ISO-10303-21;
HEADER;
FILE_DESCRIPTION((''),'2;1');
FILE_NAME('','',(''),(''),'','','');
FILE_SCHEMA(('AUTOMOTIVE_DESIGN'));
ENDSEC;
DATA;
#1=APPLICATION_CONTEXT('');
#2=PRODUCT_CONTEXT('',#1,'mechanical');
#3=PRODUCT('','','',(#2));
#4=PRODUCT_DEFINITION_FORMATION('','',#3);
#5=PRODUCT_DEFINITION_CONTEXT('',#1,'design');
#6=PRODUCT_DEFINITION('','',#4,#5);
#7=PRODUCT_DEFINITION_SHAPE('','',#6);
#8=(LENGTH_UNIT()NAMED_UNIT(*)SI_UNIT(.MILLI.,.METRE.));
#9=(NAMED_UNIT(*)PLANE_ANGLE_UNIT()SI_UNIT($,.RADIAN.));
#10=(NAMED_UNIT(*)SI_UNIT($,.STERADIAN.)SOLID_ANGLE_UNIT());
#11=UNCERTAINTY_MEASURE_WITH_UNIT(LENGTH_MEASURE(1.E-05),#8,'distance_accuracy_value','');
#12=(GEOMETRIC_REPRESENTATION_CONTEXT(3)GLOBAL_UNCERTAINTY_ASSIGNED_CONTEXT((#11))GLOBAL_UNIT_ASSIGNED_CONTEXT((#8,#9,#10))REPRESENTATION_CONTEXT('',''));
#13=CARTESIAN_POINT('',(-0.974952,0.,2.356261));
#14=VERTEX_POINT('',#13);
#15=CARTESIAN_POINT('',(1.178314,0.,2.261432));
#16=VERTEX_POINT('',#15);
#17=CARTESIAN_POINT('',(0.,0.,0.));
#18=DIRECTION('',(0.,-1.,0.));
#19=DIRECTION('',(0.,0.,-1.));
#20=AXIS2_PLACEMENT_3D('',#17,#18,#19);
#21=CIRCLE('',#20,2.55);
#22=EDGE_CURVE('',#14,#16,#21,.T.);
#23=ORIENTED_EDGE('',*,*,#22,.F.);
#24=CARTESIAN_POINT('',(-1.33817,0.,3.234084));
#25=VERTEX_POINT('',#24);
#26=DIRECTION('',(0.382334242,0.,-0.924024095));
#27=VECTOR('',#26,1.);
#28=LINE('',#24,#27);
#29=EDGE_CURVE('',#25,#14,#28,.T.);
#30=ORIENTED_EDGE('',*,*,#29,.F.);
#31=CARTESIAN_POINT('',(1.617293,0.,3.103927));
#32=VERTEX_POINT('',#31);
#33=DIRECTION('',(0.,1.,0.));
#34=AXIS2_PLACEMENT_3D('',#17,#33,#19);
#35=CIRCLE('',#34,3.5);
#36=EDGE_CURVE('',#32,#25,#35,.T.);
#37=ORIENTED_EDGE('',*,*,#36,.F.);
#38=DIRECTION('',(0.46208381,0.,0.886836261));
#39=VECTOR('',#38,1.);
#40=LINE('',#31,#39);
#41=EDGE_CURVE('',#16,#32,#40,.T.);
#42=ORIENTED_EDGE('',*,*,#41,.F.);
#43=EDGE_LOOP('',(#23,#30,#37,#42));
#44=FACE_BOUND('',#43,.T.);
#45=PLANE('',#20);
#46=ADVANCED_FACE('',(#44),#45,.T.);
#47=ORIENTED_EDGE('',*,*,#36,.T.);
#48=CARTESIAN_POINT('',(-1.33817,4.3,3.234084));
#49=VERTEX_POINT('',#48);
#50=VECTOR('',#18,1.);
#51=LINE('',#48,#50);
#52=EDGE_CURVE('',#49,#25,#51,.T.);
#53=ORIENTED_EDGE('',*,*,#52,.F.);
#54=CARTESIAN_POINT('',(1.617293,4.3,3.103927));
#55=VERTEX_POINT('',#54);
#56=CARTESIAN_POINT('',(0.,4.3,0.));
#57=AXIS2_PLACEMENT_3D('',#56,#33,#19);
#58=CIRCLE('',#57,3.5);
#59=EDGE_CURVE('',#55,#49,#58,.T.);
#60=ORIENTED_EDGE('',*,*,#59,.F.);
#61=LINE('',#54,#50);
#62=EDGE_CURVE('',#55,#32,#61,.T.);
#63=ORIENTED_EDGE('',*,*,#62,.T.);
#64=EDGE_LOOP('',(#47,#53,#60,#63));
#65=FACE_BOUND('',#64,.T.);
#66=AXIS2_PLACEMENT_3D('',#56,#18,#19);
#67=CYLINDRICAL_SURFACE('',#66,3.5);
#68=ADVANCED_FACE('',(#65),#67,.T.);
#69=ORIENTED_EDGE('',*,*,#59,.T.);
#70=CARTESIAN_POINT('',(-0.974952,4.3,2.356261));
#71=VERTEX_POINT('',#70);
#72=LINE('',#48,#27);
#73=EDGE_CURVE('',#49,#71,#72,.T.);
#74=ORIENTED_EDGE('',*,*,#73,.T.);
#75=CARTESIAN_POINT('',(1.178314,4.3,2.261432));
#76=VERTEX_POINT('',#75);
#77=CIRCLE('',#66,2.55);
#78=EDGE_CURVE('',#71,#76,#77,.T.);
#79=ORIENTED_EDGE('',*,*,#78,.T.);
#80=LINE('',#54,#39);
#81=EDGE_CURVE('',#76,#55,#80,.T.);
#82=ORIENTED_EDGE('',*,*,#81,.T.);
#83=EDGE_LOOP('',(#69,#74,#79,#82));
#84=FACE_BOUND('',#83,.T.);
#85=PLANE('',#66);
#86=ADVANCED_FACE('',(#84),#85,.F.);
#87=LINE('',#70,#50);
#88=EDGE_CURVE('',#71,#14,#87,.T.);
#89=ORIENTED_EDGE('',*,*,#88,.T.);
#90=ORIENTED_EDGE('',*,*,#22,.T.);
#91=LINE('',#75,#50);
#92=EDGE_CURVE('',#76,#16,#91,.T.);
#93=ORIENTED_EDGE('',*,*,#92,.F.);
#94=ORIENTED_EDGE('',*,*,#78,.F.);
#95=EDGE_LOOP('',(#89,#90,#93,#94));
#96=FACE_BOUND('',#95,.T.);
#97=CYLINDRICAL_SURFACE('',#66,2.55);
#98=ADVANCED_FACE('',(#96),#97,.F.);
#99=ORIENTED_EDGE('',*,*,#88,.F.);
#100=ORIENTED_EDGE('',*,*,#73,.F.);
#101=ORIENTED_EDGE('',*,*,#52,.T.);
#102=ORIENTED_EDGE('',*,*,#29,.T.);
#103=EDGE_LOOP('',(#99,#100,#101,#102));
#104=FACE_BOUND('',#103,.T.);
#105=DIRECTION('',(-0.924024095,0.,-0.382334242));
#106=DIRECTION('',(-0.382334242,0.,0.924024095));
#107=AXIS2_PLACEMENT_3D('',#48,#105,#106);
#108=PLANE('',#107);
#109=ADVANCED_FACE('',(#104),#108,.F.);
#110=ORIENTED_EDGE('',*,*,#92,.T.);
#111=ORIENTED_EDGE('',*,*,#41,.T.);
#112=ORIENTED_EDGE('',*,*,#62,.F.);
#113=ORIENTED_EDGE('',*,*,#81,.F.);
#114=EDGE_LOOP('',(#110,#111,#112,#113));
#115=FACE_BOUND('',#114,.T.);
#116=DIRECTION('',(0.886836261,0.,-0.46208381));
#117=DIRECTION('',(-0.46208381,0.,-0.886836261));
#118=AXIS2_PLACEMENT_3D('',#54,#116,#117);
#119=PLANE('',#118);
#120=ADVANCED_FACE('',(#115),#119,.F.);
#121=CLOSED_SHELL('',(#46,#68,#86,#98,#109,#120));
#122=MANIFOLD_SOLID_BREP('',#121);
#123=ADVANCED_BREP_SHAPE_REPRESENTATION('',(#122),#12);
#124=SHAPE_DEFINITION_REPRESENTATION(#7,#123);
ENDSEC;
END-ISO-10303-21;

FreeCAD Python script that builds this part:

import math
import FreeCAD as App
import Part
import Sketcher

V = App.Vector
Q = App.Units.Quantity

doc = App.newDocument("Part")
body = doc.addObject("PartDesign::Body", "Body")

# Sketch on XZ plane
sketch1 = body.newObject("Sketcher::SketchObject", "Sketch")
sketch1.AttachmentSupport = (doc.getObject("XZ_Plane"), [""])
sketch1.MapMode = "FlatFace"
sketch1.addGeometry([
    Part.LineSegment(V(-1.33817, 3.234084, 0), V(-0.974952, 2.356261, 0)),
    Part.ArcOfCircle(Part.Circle(V(0, 0, 0), V(0, 0, 1), 2.55), math.radians(112.478346), math.radians(422.478346)),
    Part.LineSegment(V(1.178314, 2.261432, 0), V(1.617293, 3.103927, 0)),
    Part.ArcOfCircle(Part.Circle(V(0, 0, 0), V(0, 0, 1), 3.5), math.radians(112.478346), math.radians(422.478346)),
], False)
sketch1.addConstraint([
    Sketcher.Constraint("Coincident", 0, 2, 1, 1),
    Sketcher.Constraint("Coincident", 1, 2, 2, 1),
    Sketcher.Constraint("Coincident", 2, 2, 3, 2),
    Sketcher.Constraint("Coincident", 3, 1, 0, 1),
    Sketcher.Constraint("Coincident", 1, 3, -1, 1),
    Sketcher.Constraint("Coincident", 3, 3, -1, 1),
    Sketcher.Constraint("Radius", 3, Q("3.5 mm")),
    Sketcher.Constraint("Radius", 1, Q("2.55 mm")),
    Sketcher.Constraint("DistanceY", -1, 1, 0, 2, Q("2.356261 mm")),
    Sketcher.Constraint("DistanceX", 3, 1, -1, 1, Q("1.33817 mm")),
    Sketcher.Constraint("DistanceY", 1, 2, 0, 2, Q("0.094829 mm")),
    Sketcher.Constraint("DistanceX", 1, 2, 2, 2, Q("0.43898 mm")),
])
pad1 = body.newObject("PartDesign::Pad", "Pad")
pad1.Profile = sketch1
pad1.Length = 4.3
pad1.Reversed = True

doc.recompute()
